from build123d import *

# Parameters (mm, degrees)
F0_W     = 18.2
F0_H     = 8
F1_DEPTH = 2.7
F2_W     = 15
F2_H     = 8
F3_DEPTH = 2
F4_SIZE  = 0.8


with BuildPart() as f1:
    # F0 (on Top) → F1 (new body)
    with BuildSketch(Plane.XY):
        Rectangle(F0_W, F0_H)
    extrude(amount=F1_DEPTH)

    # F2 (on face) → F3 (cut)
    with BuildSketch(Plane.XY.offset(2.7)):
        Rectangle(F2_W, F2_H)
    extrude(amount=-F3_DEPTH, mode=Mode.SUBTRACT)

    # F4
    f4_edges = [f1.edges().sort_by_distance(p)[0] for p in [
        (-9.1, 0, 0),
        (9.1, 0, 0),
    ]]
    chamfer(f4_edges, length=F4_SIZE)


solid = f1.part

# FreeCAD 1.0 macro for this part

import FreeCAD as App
import Part
import Sketcher

V = App.Vector
Q = App.Units.Quantity


def edges_at(feature, points):
    """Names of the edges that pass closest to the given points."""
    edges = feature.Shape.Edges
    near = lambda p: min(range(len(edges)), key=lambda i: edges[i].distToShape(Part.Vertex(*p))[0])
    return sorted({f"Edge{near(p) + 1}" for p in points})

doc = App.newDocument("Part")
body = doc.addObject("PartDesign::Body", "Body")

# Sketch on XY plane
sketch1 = body.newObject("Sketcher::SketchObject", "Sketch")
sketch1.AttachmentSupport = (doc.getObject("XY_Plane"), [""])
sketch1.MapMode = "FlatFace"
sketch1.addGeometry(Part.LineSegment(V(-9, 4, 0), V(-9, -4, 0)), False)
sketch1.addGeometry(Part.LineSegment(V(-9, -4, 0), V(9, -4, 0)), False)
sketch1.addGeometry(Part.LineSegment(V(9, -4, 0), V(9, 4, 0)), False)
sketch1.addGeometry(Part.LineSegment(V(9, 4, 0), V(-9, 4, 0)), False)
sketch1.addConstraint(Sketcher.Constraint("Coincident", 0, 2, 1, 1))
sketch1.addConstraint(Sketcher.Constraint("Coincident", 1, 2, 2, 1))
sketch1.addConstraint(Sketcher.Constraint("Coincident", 2, 2, 3, 1))
sketch1.addConstraint(Sketcher.Constraint("Coincident", 3, 2, 0, 1))
sketch1.addConstraint(Sketcher.Constraint("Vertical", 0))
sketch1.addConstraint(Sketcher.Constraint("Horizontal", 1))
sketch1.addConstraint(Sketcher.Constraint("Vertical", 2))
sketch1.addConstraint(Sketcher.Constraint("Horizontal", 3))
sketch1.addConstraint(Sketcher.Constraint("Symmetric", 0, 2, 2, 2, -1, 1))
sketch1.addConstraint(Sketcher.Constraint("DistanceY", 0, 2, 0, 1, Q("8 mm")))
sketch1.addConstraint(Sketcher.Constraint("DistanceX", 1, 1, 1, 2, Q("18.2 mm")))
pad1 = body.newObject("PartDesign::Pad", "Pad")
pad1.Profile = sketch1
pad1.Length = 2.7

# Sketch on XY plane
sketch2 = body.newObject("Sketcher::SketchObject", "Sketch001")
sketch2.AttachmentSupport = (doc.getObject("XY_Plane"), [""])
sketch2.MapMode = "FlatFace"
sketch2.AttachmentOffset = App.Placement(V(0, 0, 2.7), App.Rotation())
sketch2.addGeometry(Part.LineSegment(V(-8, 4, 0), V(-8, -4, 0)), False)
sketch2.addGeometry(Part.LineSegment(V(-8, -4, 0), V(8, -4, 0)), False)
sketch2.addGeometry(Part.LineSegment(V(8, -4, 0), V(8, 4, 0)), False)
sketch2.addGeometry(Part.LineSegment(V(8, 4, 0), V(-8, 4, 0)), False)
sketch2.addConstraint(Sketcher.Constraint("Coincident", 0, 2, 1, 1))
sketch2.addConstraint(Sketcher.Constraint("Coincident", 1, 2, 2, 1))
sketch2.addConstraint(Sketcher.Constraint("Coincident", 2, 2, 3, 1))
sketch2.addConstraint(Sketcher.Constraint("Coincident", 3, 2, 0, 1))
sketch2.addConstraint(Sketcher.Constraint("Vertical", 0))
sketch2.addConstraint(Sketcher.Constraint("Horizontal", 1))
sketch2.addConstraint(Sketcher.Constraint("Vertical", 2))
sketch2.addConstraint(Sketcher.Constraint("Horizontal", 3))
sketch2.addConstraint(Sketcher.Constraint("Symmetric", 0, 2, 2, 2, -1, 1))
sketch2.addConstraint(Sketcher.Constraint("DistanceX", 1, 1, 1, 2, Q("15 mm")))
sketch2.addConstraint(Sketcher.Constraint("DistanceY", 0, 2, 0, 1, Q("8 mm")))
pocket1 = body.newObject("PartDesign::Pocket", "Pocket")
pocket1.Profile = sketch2
pocket1.Length = 2
doc.recompute()

chamfer = body.newObject("PartDesign::Chamfer", "Chamfer")
chamfer.Base = (pocket1, edges_at(pocket1, [(-9.1, 0, 0), (9.1, 0, 0)]))
chamfer.Size = 0.8

doc.recompute()
